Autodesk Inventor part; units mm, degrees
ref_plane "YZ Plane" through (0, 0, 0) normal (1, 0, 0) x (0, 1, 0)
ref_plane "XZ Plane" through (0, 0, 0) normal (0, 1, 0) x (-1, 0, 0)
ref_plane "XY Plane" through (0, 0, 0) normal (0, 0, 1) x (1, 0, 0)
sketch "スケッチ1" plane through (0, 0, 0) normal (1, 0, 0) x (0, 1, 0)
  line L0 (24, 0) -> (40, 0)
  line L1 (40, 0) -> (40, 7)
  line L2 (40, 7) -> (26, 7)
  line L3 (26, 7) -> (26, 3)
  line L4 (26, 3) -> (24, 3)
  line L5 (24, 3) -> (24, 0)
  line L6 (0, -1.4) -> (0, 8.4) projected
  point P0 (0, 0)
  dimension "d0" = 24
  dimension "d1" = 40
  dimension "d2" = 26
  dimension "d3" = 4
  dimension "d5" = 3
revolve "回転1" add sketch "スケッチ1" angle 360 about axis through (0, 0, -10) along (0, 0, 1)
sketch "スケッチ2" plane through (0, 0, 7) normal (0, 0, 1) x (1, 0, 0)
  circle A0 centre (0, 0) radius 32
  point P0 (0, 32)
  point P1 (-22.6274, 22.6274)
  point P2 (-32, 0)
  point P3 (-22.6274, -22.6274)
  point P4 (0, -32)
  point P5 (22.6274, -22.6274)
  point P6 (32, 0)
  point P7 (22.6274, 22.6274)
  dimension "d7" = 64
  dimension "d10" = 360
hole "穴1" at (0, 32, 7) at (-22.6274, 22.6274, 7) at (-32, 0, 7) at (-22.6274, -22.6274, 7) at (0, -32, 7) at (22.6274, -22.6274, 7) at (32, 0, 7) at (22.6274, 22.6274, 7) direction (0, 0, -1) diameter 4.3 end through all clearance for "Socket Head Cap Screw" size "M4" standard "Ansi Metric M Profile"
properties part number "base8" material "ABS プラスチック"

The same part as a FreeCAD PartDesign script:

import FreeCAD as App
import Part
import Sketcher
from FreeCAD import Vector
Q = App.Units.Quantity

doc = App.newDocument("Part")
body = doc.addObject("PartDesign::Body", "Body")

# Sketch on YZ plane
sketch1 = body.newObject("Sketcher::SketchObject", "Sketch")
sketch1.AttachmentSupport = (doc.getObject("YZ_Plane"), [""])
sketch1.MapMode = "FlatFace"
sketch1.addGeometry([
    Part.LineSegment(Vector(24, 3, 0), Vector(24, 0, 0)),  # 0
    Part.LineSegment(Vector(24, 0, 0), Vector(40, 0, 0)),  # 1
    Part.LineSegment(Vector(40, 0, 0), Vector(40, 7, 0)),  # 2
    Part.LineSegment(Vector(40, 7, 0), Vector(26, 7, 0)),  # 3
    Part.LineSegment(Vector(26, 7, 0), Vector(26, 3, 0)),  # 4
    Part.LineSegment(Vector(26, 3, 0), Vector(24, 3, 0)),  # 5
], False)
sketch1.addConstraint([
    Sketcher.Constraint("Coincident", 0, 2, 1, 1),
    Sketcher.Constraint("Coincident", 1, 2, 2, 1),
    Sketcher.Constraint("Coincident", 2, 2, 3, 1),
    Sketcher.Constraint("Coincident", 3, 2, 4, 1),
    Sketcher.Constraint("Coincident", 4, 2, 5, 1),
    Sketcher.Constraint("Coincident", 5, 2, 0, 1),
    Sketcher.Constraint("Vertical", 0),
    Sketcher.Constraint("Horizontal", 1),
    Sketcher.Constraint("Vertical", 2),
    Sketcher.Constraint("Horizontal", 3),
    Sketcher.Constraint("Vertical", 4),
    Sketcher.Constraint("Horizontal", 5),
    Sketcher.Constraint("PointOnObject", 0, 2, -1),
    Sketcher.Constraint("DistanceY", 0, 2, 0, 1, Q("3 mm")),
    Sketcher.Constraint("DistanceY", 4, 2, 4, 1, Q("4 mm")),
    Sketcher.Constraint("DistanceX", -1, 1, 0, 2, Q("24 mm")),
    Sketcher.Constraint("DistanceX", -1, 1, 1, 2, Q("40 mm")),
    Sketcher.Constraint("DistanceX", -1, 1, 3, 2, Q("26 mm")),
])
revolution = body.newObject("PartDesign::Revolution", "Revolution")
revolution.Profile = sketch1
revolution.ReferenceAxis = (sketch1, ["V_Axis"])
revolution.Angle = 360

# Sketch on XY plane
sketch2 = body.newObject("Sketcher::SketchObject", "Sketch001")
sketch2.AttachmentSupport = (doc.getObject("XY_Plane"), [""])
sketch2.MapMode = "FlatFace"
sketch2.AttachmentOffset = App.Placement(Vector(0, 0, 7), App.Rotation())
sketch2.addGeometry([
    Part.Circle(Vector(0, 32, 0), Vector(0, 0, 1), 2.15),  # 0
    Part.Circle(Vector(-22.6274, 22.6274, 0), Vector(0, 0, 1), 2.15),  # 1
    Part.Circle(Vector(-32, 0, 0), Vector(0, 0, 1), 2.15),  # 2
    Part.Circle(Vector(-22.6274, -22.6274, 0), Vector(0, 0, 1), 2.15),  # 3
    Part.Circle(Vector(0, -32, 0), Vector(0, 0, 1), 2.15),  # 4
    Part.Circle(Vector(22.6274, -22.6274, 0), Vector(0, 0, 1), 2.15),  # 5
    Part.Circle(Vector(32, 0, 0), Vector(0, 0, 1), 2.15),  # 6
    Part.Circle(Vector(22.6274, 22.6274, 0), Vector(0, 0, 1), 2.15),  # 7
], False)
sketch2.addConstraint([
    Sketcher.Constraint("Equal", 0, 1),
    Sketcher.Constraint("Equal", 1, 2),
    Sketcher.Constraint("Equal", 2, 3),
    Sketcher.Constraint("Equal", 3, 4),
    Sketcher.Constraint("Equal", 4, 5),
    Sketcher.Constraint("Equal", 5, 6),
    Sketcher.Constraint("Equal", 6, 7),
    Sketcher.Constraint("Symmetric", 0, 3, 4, 3, -1, 1),
    Sketcher.Constraint("Symmetric", 1, 3, 5, 3, -1, 1),
    Sketcher.Constraint("Symmetric", 2, 3, 6, 3, -1, 1),
    Sketcher.Constraint("Symmetric", 3, 3, 7, 3, -1, 1),
    Sketcher.Constraint("Symmetric", 3, 3, 5, 3, -2),
    Sketcher.Constraint("PointOnObject", 0, 3, -2),
    Sketcher.Constraint("PointOnObject", 2, 3, -1),
    Sketcher.Constraint("Diameter", 0, Q("4.3 mm")),
    Sketcher.Constraint("DistanceY", -1, 1, 0, 3, Q("32 mm")),
    Sketcher.Constraint("DistanceX", 2, 3, -1, 1, Q("32 mm")),
    Sketcher.Constraint("DistanceX", 1, 3, -1, 1, Q("22.6274 mm")),
    Sketcher.Constraint("DistanceY", -1, 1, 1, 3, Q("22.6274 mm")),
])
doc.recompute()
hole = body.newObject("PartDesign::Hole", "Hole")
hole.Profile = sketch2
hole.ThreadType = "None"
hole.Diameter = 4.3
hole.DepthType = "ThroughAll"

doc.recompute()
